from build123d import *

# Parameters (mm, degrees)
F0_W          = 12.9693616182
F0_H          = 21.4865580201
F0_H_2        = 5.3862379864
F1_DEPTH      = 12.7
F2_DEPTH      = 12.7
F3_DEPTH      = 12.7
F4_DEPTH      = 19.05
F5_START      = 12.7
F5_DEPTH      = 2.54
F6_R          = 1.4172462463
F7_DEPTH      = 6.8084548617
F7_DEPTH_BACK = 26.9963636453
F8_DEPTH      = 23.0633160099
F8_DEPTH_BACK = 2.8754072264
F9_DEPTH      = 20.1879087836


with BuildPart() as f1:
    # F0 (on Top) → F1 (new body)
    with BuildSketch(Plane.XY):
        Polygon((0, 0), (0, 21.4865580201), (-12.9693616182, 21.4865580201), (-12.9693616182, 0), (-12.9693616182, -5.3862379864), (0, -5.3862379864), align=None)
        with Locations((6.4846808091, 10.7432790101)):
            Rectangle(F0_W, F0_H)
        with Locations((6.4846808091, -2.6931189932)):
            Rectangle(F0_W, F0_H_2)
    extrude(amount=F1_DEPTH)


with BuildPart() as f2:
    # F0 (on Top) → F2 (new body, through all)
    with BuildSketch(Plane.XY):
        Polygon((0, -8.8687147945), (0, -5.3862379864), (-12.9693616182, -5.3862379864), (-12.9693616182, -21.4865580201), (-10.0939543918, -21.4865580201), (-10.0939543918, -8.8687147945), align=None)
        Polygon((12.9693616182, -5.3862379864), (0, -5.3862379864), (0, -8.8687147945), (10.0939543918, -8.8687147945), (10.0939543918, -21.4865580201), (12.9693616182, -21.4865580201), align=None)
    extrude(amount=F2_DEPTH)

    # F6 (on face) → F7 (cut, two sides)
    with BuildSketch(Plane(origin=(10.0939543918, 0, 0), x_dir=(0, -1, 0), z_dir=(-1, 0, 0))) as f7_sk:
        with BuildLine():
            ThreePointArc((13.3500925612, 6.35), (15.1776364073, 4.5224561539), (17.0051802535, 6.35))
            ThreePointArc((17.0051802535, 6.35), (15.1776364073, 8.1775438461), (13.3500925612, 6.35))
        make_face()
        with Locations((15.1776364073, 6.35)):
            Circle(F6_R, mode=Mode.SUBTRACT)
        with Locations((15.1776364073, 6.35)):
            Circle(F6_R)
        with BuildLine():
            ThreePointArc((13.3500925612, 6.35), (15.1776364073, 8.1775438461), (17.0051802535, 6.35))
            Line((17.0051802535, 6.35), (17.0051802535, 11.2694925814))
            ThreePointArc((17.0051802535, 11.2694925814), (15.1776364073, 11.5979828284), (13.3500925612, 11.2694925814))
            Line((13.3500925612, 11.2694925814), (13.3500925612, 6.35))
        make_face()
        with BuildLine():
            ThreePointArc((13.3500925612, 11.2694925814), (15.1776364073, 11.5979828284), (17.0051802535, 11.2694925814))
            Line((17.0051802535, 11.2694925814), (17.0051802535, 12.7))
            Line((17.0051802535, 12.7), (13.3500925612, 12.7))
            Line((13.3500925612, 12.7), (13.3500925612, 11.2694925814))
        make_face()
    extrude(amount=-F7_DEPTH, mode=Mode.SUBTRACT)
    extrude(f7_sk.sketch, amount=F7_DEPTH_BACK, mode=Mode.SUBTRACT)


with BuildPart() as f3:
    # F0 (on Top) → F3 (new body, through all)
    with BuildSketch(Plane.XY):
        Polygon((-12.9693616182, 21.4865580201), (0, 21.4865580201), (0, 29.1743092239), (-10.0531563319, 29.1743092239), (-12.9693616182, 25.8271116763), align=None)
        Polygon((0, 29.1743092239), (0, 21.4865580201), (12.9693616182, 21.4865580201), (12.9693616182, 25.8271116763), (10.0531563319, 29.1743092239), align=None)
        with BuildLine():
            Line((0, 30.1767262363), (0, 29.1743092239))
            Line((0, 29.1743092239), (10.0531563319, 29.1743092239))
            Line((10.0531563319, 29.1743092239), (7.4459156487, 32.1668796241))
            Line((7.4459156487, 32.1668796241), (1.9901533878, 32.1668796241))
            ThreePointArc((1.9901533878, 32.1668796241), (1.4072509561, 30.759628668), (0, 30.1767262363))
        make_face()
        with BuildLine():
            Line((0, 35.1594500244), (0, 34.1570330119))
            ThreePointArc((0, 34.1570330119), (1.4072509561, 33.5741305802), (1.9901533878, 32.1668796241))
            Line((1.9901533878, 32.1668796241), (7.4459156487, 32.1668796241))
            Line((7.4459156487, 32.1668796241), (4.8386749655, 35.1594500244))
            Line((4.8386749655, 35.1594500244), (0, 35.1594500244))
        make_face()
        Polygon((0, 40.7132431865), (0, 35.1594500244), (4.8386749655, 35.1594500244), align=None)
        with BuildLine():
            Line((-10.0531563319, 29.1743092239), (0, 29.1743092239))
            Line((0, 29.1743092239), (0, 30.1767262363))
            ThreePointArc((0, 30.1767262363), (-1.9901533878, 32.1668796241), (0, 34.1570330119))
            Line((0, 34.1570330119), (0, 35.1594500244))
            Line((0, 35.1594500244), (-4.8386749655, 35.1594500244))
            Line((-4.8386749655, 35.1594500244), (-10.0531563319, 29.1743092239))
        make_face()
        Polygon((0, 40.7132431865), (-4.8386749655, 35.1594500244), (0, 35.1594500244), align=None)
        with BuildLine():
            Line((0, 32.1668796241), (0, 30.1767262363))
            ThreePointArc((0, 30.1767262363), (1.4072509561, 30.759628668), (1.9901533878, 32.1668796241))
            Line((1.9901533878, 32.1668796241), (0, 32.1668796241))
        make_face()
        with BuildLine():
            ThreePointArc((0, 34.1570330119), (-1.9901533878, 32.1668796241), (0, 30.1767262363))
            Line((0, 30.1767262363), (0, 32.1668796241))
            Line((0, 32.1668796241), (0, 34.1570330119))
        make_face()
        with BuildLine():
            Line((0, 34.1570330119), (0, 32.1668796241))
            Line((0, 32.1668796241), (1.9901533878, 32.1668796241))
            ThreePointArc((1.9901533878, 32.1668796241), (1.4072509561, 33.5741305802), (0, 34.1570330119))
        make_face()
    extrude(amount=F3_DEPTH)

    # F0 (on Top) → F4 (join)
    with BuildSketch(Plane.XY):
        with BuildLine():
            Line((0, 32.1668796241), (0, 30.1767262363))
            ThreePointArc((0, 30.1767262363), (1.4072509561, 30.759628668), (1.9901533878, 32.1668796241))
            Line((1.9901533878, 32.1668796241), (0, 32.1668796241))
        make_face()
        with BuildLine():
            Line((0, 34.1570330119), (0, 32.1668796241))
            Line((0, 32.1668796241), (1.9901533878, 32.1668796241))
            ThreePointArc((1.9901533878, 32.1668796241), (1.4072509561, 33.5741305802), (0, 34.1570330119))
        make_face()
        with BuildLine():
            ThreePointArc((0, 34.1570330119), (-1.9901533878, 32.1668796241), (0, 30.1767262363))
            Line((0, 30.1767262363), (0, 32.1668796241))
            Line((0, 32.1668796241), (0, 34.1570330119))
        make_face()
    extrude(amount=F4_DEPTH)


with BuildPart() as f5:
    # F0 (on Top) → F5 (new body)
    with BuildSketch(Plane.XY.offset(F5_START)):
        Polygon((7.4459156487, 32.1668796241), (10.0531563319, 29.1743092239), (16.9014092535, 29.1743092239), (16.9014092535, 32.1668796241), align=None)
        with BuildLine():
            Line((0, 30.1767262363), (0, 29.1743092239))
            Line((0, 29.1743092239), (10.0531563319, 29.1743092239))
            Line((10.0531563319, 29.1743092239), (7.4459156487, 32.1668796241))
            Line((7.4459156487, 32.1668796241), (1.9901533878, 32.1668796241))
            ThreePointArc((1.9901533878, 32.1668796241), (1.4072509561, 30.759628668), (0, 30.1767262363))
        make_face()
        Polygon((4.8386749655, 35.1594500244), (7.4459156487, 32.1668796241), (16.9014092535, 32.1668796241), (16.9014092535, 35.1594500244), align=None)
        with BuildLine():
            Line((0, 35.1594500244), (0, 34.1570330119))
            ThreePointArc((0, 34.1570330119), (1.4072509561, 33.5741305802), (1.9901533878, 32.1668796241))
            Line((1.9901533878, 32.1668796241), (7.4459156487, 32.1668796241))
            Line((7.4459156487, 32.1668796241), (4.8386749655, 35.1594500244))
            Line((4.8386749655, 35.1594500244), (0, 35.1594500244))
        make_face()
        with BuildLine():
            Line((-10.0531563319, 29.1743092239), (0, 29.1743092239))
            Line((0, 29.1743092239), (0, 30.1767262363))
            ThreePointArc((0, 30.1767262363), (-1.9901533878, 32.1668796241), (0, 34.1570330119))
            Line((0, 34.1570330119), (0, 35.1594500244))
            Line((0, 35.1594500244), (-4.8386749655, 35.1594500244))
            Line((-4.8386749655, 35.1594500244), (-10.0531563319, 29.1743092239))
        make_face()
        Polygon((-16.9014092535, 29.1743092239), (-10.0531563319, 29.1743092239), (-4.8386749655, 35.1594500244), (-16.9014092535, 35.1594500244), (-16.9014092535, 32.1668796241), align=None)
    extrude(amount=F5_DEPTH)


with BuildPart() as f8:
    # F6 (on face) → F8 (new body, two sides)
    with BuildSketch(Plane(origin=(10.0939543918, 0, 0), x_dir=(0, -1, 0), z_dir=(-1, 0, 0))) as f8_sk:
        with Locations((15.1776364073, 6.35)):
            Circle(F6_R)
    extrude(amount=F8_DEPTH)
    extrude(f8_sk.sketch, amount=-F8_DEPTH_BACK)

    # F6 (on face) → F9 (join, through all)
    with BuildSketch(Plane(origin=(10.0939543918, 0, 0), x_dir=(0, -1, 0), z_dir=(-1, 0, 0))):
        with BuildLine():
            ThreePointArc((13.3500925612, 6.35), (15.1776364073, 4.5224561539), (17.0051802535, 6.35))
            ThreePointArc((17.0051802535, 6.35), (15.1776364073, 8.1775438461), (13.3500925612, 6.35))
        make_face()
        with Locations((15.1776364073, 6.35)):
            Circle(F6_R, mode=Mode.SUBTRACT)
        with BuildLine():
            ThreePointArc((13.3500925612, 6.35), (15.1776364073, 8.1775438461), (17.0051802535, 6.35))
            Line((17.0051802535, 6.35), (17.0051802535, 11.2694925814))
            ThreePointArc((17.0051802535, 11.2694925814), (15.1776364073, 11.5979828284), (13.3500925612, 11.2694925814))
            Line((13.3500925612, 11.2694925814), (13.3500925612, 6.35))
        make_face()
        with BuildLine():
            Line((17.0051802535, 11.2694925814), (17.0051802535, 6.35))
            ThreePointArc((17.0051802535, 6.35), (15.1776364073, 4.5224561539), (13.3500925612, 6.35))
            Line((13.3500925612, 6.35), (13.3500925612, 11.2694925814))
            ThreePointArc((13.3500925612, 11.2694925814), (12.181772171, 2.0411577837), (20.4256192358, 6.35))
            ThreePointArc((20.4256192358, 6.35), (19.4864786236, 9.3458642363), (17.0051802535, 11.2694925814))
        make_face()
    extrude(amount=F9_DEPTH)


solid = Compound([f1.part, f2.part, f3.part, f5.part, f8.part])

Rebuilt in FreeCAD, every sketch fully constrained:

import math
import FreeCAD as App
import Part
import Sketcher
Q = App.Units.Quantity


def add_polygon(sketch, points):
    """Adds a closed chain of lines whose ends are joined by coincident constraints."""
    first, n = sketch.GeometryCount, len(points)
    for a, b in zip(points, points[1:] + points[:1]):
        sketch.addGeometry(Part.LineSegment(App.Vector(*a, 0), App.Vector(*b, 0)), False)
    for i in range(n):
        sketch.addConstraint(Sketcher.Constraint("Coincident", first + i, 2, first + (i + 1) % n, 1))

doc = App.newDocument("Part")
body = doc.addObject("PartDesign::Body", "Body")

# Sketch on XY plane
sketch1 = body.newObject("Sketcher::SketchObject", "Sketch")
sketch1.AttachmentSupport = (doc.getObject("XY_Plane"), [""])
sketch1.MapMode = "FlatFace"
add_polygon(sketch1, [(0, 21), (-13, 21), (-13, -5), (13, -5), (13, 21)])  # lines 0-4
sketch1.addConstraint([
    Sketcher.Constraint("Horizontal", 0),
    Sketcher.Constraint("Vertical", 1),
    Sketcher.Constraint("Horizontal", 2),
    Sketcher.Constraint("Vertical", 3),
    Sketcher.Constraint("Horizontal", 4),
    Sketcher.Constraint("PointOnObject", 4, 2, -2),
    Sketcher.Constraint("Equal", 0, 4),
    Sketcher.Constraint("DistanceX", 0, 2, 0, 1, 12.969362),
    Sketcher.Constraint("DistanceY", 1, 2, 1, 1, 26.872796),
    Sketcher.Constraint("DistanceY", -1, 1, 0, 2, 21.486558),
])
pad1 = body.newObject("PartDesign::Pad", "Pad")
pad1.Profile = sketch1
pad1.Length = Q("0.5 in")
body2 = doc.addObject("PartDesign::Body", "Body001")

# Sketch on XY plane
sketch2 = body2.newObject("Sketcher::SketchObject", "Sketch001")
sketch2.AttachmentSupport = (doc.getObject("XY_Plane001"), [""])
sketch2.MapMode = "FlatFace"
add_polygon(sketch2, [(-13, -5.4), (-13, -21.5), (-10.1, -21.5), (-10.1, -8.9), (10.1, -8.9), (10.1, -21.5), (13, -21.5), (13, -5.4)])  # lines 0-7
sketch2.addConstraint([
    Sketcher.Constraint("Vertical", 0),
    Sketcher.Constraint("Horizontal", 1),
    Sketcher.Constraint("Vertical", 2),
    Sketcher.Constraint("Horizontal", 3),
    Sketcher.Constraint("Vertical", 4),
    Sketcher.Constraint("Horizontal", 5),
    Sketcher.Constraint("Vertical", 6),
    Sketcher.Constraint("Horizontal", 7),
    Sketcher.Constraint("Symmetric", 1, 2, 4, 2, -2),
    Sketcher.Constraint("Equal", 1, 5),
    Sketcher.Constraint("DistanceX", 3, 1, 3, 2, 20.187909),
    Sketcher.Constraint("DistanceY", 0, 2, 0, 1, 16.10032),
    Sketcher.Constraint("DistanceX", 1, 1, 1, 2, 2.875407),
    Sketcher.Constraint("DistanceY", 2, 1, 2, 2, 12.617843),
    Sketcher.Constraint("DistanceY", 0, 2, -1, 1, 21.486558),
])
pad2 = body2.newObject("PartDesign::Pad", "Pad001")
pad2.Profile = sketch2
pad2.Length = Q("0.5 in")

# Sketch on YZ plane
sketch3 = body2.newObject("Sketcher::SketchObject", "Sketch002")
sketch3.AttachmentSupport = (doc.getObject("YZ_Plane001"), [""])
sketch3.MapMode = "FlatFace"
sketch3.AttachmentOffset = App.Placement(App.Vector(0, 0, 10.093954), App.Rotation())
sketch3.addGeometry([
    Part.ArcOfCircle(Part.Circle(App.Vector(-15.2, 6.3, 0), App.Vector(0, 0, 1), 1.8), math.radians(180), math.radians(360)),
    Part.LineSegment(App.Vector(-17, 6.3, 0), App.Vector(-17, 12.7, 0)),
    Part.LineSegment(App.Vector(-17, 12.7, 0), App.Vector(-13.4, 12.7, 0)),
    Part.LineSegment(App.Vector(-13.4, 12.7, 0), App.Vector(-13.4, 6.3, 0)),
], False)
sketch3.addConstraint([
    Sketcher.Constraint("Tangent", 0, 1, 1, 1),
    Sketcher.Constraint("Coincident", 1, 2, 2, 1),
    Sketcher.Constraint("Coincident", 2, 2, 3, 1),
    Sketcher.Constraint("Tangent", 3, 2, 0, 2),
    Sketcher.Constraint("Vertical", 1),
    Sketcher.Constraint("Horizontal", 2),
    Sketcher.Constraint("Vertical", 3),
    Sketcher.Constraint("DistanceY", 1, 1, 1, 2, Q("0.25 in")),
    Sketcher.Constraint("DistanceY", -1, 1, 1, 2, Q("0.5 in")),
    Sketcher.Constraint("Radius", 0, 1.827544),
    Sketcher.Constraint("DistanceX", 0, 1, -1, 1, 17.00518),
])
pocket1 = body2.newObject("PartDesign::Pocket", "Pocket")
pocket1.Profile = sketch3
pocket1.Type = "ThroughAll"
pocket1.Midplane = True
body3 = doc.addObject("PartDesign::Body", "Body002")

# Sketch on XY plane
sketch4 = body3.newObject("Sketcher::SketchObject", "Sketch003")
sketch4.AttachmentSupport = (doc.getObject("XY_Plane002"), [""])
sketch4.MapMode = "FlatFace"
add_polygon(sketch4, [(-13, 21.5), (13, 21.5), (13, 25.8), (10.1, 29.2), (7.4, 32.2), (4.8, 35.2), (0, 40.7), (-4.8, 35.2), (-10.1, 29.2), (-13, 25.8)])  # lines 0-9
sketch4.addConstraint([
    Sketcher.Constraint("Horizontal", 0),
    Sketcher.Constraint("Vertical", 1),
    Sketcher.Constraint("Vertical", 9),
    Sketcher.Constraint("Symmetric", 4, 2, 6, 2, -2),
    Sketcher.Constraint("Symmetric", 2, 2, 7, 2, -2),
    Sketcher.Constraint("Symmetric", 1, 2, 8, 2, -2),
    Sketcher.Constraint("PointOnObject", 5, 2, -2),
    Sketcher.Constraint("Parallel", 2, 3),
    Sketcher.Constraint("Parallel", 3, 4),
    Sketcher.Constraint("Parallel", 4, 5),
    Sketcher.Constraint("Equal", 3, 4),
    Sketcher.Constraint("Distance", 5, 7.365962),
    Sketcher.Constraint("DistanceX", 0, 1, 0, 2, 25.938723),
    Sketcher.Constraint("DistanceY", 1, 1, 1, 2, 4.340554),
    Sketcher.Constraint("DistanceY", -1, 1, 0, 2, 21.486558),
    Sketcher.Constraint("DistanceY", -1, 1, 2, 2, 29.174309),
    Sketcher.Constraint("DistanceY", -1, 1, 3, 2, 32.16688),
])
pad3 = body3.newObject("PartDesign::Pad", "Pad002")
pad3.Profile = sketch4
pad3.Length = Q("0.5 in")

# Sketch on XY plane
sketch5 = body3.newObject("Sketcher::SketchObject", "Sketch004")
sketch5.AttachmentSupport = (doc.getObject("XY_Plane002"), [""])
sketch5.MapMode = "FlatFace"
sketch5.addGeometry([
    Part.ArcOfCircle(Part.Circle(App.Vector(0, 32.2, 0), App.Vector(0, 0, 1), 2), math.radians(-90), math.radians(0)),
    Part.ArcOfCircle(Part.Circle(App.Vector(0, 32.2, 0), App.Vector(0, 0, 1), 2), math.radians(0), math.radians(90)),
    Part.ArcOfCircle(Part.Circle(App.Vector(0, 32.2, 0), App.Vector(0, 0, 1), 2), math.radians(90), math.radians(270)),
], False)
sketch5.addConstraint([
    Sketcher.Constraint("Tangent", 0, 2, 1, 1),
    Sketcher.Constraint("Tangent", 1, 2, 2, 1),
    Sketcher.Constraint("Tangent", 2, 2, 0, 1),
    Sketcher.Constraint("PointOnObject", 0, 3, -2),
    Sketcher.Constraint("PointOnObject", 1, 2, -2),
    Sketcher.Constraint("PointOnObject", 2, 2, -2),
    Sketcher.Constraint("Horizontal", 2, 3, 0, 2),
    Sketcher.Constraint("Radius", 0, 1.990153),
    Sketcher.Constraint("DistanceY", -1, 1, 0, 3, 32.16688),
])
pad4 = body3.newObject("PartDesign::Pad", "Pad003")
pad4.Profile = sketch5
pad4.Length = Q("0.75 in")
body4 = doc.addObject("PartDesign::Body", "Body003")

# Sketch on XY plane
sketch6 = body4.newObject("Sketcher::SketchObject", "Sketch005")
sketch6.AttachmentSupport = (doc.getObject("XY_Plane003"), [""])
sketch6.MapMode = "FlatFace"
sketch6.AttachmentOffset = App.Placement(App.Vector(0, 0, 0.5 * 25.4), App.Rotation())
add_polygon(sketch6, [(16.9, 29.2), (16.9, 35.2), (-16.9, 35.2), (-16.9, 29.2)])  # lines 0-3
sketch6.addGeometry(Part.ArcOfCircle(Part.Circle(App.Vector(0, 32.2, 0), App.Vector(0, 0, 1), 2), math.radians(0), math.radians(90)), False)  # 4
sketch6.addGeometry(Part.ArcOfCircle(Part.Circle(App.Vector(0, 32.2, 0), App.Vector(0, 0, 1), 2), math.radians(-90), math.radians(0)), False)  # 5
sketch6.addGeometry(Part.ArcOfCircle(Part.Circle(App.Vector(0, 32.2, 0), App.Vector(0, 0, 1), 2), math.radians(90), math.radians(270)), False)  # 6
sketch6.addConstraint([
    Sketcher.Constraint("Tangent", 4, 1, 5, 2),
    Sketcher.Constraint("Tangent", 5, 1, 6, 2),
    Sketcher.Constraint("Tangent", 6, 1, 4, 2),
    Sketcher.Constraint("Vertical", 0),
    Sketcher.Constraint("Horizontal", 1),
    Sketcher.Constraint("Vertical", 2),
    Sketcher.Constraint("Horizontal", 3),
    Sketcher.Constraint("PointOnObject", 4, 3, -2),
    Sketcher.Constraint("PointOnObject", 5, 1, -2),
    Sketcher.Constraint("PointOnObject", 6, 1, -2),
    Sketcher.Constraint("Horizontal", 6, 3, 4, 1),
    Sketcher.Constraint("Radius", 4, 1.990153),
    Sketcher.Constraint("DistanceX", 1, 2, 1, 1, 33.802819),
    Sketcher.Constraint("DistanceY", 0, 1, 0, 2, 5.985141),
    Sketcher.Constraint("DistanceY", -1, 1, 4, 3, 32.16688),
    Sketcher.Constraint("DistanceX", -1, 1, 0, 2, 16.901409),
    Sketcher.Constraint("DistanceY", -1, 1, 0, 2, 35.15945),
])
pad5 = body4.newObject("PartDesign::Pad", "Pad004")
pad5.Profile = sketch6
pad5.Length = Q("0.1 in")
body5 = doc.addObject("PartDesign::Body", "Body004")

# Sketch on YZ plane
sketch7 = body5.newObject("Sketcher::SketchObject", "Sketch006")
sketch7.AttachmentSupport = (doc.getObject("YZ_Plane004"), [""])
sketch7.MapMode = "FlatFace"
sketch7.AttachmentOffset = App.Placement(App.Vector(0, 0, 10.093954), App.Rotation())
sketch7.addGeometry(Part.Circle(App.Vector(-15.2, 6.3, 0), App.Vector(0, 0, 1), 1.4), False)
sketch7.addConstraint([
    Sketcher.Constraint("DistanceY", -1, 1, 0, 3, Q("0.25 in")),
    Sketcher.Constraint("Diameter", 0, 2.834492),
    Sketcher.Constraint("DistanceX", 0, 3, -1, 1, 15.177636),
])
pad6 = body5.newObject("PartDesign::Pad", "Pad005")
pad6.Profile = sketch7
pad6.Type = "TwoLengths"
pad6.Length = 23.063316
pad6.Length2 = 2.875407
pad6.Reversed = True

# Sketch on YZ plane
sketch8 = body5.newObject("Sketcher::SketchObject", "Sketch007")
sketch8.AttachmentSupport = (doc.getObject("YZ_Plane004"), [""])
sketch8.MapMode = "FlatFace"
sketch8.AttachmentOffset = App.Placement(App.Vector(0, 0, 10.093954), App.Rotation())
sketch8.addGeometry([
    Part.ArcOfCircle(Part.Circle(App.Vector(-15.2, 6.3, 0), App.Vector(0, 0, 1), 5.2), math.radians(70), math.radians(110)),
    Part.ArcOfCircle(Part.Circle(App.Vector(-15.2, 6.3, 0), App.Vector(0, 0, 1), 5.2), math.radians(180), math.radians(430)),
    Part.ArcOfCircle(Part.Circle(App.Vector(-15.2, 6.3, 0), App.Vector(0, 0, 1), 5.2), math.radians(110), math.radians(180)),
    Part.Circle(App.Vector(-15.2, 6.3, 0), App.Vector(0, 0, 1), 1.4),
], False)
sketch8.addConstraint([
    Sketcher.Constraint("Tangent", 0, 1, 1, 2),
    Sketcher.Constraint("Tangent", 1, 1, 2, 2),
    Sketcher.Constraint("Tangent", 2, 1, 0, 2),
    Sketcher.Constraint("Coincident", 3, 3, 0, 3),
    Sketcher.Constraint("Horizontal", 3, 3, 1, 1),
    Sketcher.Constraint("Horizontal", 0, 1, 2, 1),
    Sketcher.Constraint("DistanceY", -1, 1, 0, 3, Q("0.25 in")),
    Sketcher.Constraint("Diameter", 3, 2.834492),
    Sketcher.Constraint("Radius", 0, 5.247983),
    Sketcher.Constraint("DistanceX", 1, 1, -1, 1, 20.425619),
    Sketcher.Constraint("DistanceX", 2, 1, -1, 1, 17.00518),
])
pad7 = body5.newObject("PartDesign::Pad", "Pad006")
pad7.Profile = sketch8
pad7.Length = 20.187909
pad7.Reversed = True

doc.recompute()
